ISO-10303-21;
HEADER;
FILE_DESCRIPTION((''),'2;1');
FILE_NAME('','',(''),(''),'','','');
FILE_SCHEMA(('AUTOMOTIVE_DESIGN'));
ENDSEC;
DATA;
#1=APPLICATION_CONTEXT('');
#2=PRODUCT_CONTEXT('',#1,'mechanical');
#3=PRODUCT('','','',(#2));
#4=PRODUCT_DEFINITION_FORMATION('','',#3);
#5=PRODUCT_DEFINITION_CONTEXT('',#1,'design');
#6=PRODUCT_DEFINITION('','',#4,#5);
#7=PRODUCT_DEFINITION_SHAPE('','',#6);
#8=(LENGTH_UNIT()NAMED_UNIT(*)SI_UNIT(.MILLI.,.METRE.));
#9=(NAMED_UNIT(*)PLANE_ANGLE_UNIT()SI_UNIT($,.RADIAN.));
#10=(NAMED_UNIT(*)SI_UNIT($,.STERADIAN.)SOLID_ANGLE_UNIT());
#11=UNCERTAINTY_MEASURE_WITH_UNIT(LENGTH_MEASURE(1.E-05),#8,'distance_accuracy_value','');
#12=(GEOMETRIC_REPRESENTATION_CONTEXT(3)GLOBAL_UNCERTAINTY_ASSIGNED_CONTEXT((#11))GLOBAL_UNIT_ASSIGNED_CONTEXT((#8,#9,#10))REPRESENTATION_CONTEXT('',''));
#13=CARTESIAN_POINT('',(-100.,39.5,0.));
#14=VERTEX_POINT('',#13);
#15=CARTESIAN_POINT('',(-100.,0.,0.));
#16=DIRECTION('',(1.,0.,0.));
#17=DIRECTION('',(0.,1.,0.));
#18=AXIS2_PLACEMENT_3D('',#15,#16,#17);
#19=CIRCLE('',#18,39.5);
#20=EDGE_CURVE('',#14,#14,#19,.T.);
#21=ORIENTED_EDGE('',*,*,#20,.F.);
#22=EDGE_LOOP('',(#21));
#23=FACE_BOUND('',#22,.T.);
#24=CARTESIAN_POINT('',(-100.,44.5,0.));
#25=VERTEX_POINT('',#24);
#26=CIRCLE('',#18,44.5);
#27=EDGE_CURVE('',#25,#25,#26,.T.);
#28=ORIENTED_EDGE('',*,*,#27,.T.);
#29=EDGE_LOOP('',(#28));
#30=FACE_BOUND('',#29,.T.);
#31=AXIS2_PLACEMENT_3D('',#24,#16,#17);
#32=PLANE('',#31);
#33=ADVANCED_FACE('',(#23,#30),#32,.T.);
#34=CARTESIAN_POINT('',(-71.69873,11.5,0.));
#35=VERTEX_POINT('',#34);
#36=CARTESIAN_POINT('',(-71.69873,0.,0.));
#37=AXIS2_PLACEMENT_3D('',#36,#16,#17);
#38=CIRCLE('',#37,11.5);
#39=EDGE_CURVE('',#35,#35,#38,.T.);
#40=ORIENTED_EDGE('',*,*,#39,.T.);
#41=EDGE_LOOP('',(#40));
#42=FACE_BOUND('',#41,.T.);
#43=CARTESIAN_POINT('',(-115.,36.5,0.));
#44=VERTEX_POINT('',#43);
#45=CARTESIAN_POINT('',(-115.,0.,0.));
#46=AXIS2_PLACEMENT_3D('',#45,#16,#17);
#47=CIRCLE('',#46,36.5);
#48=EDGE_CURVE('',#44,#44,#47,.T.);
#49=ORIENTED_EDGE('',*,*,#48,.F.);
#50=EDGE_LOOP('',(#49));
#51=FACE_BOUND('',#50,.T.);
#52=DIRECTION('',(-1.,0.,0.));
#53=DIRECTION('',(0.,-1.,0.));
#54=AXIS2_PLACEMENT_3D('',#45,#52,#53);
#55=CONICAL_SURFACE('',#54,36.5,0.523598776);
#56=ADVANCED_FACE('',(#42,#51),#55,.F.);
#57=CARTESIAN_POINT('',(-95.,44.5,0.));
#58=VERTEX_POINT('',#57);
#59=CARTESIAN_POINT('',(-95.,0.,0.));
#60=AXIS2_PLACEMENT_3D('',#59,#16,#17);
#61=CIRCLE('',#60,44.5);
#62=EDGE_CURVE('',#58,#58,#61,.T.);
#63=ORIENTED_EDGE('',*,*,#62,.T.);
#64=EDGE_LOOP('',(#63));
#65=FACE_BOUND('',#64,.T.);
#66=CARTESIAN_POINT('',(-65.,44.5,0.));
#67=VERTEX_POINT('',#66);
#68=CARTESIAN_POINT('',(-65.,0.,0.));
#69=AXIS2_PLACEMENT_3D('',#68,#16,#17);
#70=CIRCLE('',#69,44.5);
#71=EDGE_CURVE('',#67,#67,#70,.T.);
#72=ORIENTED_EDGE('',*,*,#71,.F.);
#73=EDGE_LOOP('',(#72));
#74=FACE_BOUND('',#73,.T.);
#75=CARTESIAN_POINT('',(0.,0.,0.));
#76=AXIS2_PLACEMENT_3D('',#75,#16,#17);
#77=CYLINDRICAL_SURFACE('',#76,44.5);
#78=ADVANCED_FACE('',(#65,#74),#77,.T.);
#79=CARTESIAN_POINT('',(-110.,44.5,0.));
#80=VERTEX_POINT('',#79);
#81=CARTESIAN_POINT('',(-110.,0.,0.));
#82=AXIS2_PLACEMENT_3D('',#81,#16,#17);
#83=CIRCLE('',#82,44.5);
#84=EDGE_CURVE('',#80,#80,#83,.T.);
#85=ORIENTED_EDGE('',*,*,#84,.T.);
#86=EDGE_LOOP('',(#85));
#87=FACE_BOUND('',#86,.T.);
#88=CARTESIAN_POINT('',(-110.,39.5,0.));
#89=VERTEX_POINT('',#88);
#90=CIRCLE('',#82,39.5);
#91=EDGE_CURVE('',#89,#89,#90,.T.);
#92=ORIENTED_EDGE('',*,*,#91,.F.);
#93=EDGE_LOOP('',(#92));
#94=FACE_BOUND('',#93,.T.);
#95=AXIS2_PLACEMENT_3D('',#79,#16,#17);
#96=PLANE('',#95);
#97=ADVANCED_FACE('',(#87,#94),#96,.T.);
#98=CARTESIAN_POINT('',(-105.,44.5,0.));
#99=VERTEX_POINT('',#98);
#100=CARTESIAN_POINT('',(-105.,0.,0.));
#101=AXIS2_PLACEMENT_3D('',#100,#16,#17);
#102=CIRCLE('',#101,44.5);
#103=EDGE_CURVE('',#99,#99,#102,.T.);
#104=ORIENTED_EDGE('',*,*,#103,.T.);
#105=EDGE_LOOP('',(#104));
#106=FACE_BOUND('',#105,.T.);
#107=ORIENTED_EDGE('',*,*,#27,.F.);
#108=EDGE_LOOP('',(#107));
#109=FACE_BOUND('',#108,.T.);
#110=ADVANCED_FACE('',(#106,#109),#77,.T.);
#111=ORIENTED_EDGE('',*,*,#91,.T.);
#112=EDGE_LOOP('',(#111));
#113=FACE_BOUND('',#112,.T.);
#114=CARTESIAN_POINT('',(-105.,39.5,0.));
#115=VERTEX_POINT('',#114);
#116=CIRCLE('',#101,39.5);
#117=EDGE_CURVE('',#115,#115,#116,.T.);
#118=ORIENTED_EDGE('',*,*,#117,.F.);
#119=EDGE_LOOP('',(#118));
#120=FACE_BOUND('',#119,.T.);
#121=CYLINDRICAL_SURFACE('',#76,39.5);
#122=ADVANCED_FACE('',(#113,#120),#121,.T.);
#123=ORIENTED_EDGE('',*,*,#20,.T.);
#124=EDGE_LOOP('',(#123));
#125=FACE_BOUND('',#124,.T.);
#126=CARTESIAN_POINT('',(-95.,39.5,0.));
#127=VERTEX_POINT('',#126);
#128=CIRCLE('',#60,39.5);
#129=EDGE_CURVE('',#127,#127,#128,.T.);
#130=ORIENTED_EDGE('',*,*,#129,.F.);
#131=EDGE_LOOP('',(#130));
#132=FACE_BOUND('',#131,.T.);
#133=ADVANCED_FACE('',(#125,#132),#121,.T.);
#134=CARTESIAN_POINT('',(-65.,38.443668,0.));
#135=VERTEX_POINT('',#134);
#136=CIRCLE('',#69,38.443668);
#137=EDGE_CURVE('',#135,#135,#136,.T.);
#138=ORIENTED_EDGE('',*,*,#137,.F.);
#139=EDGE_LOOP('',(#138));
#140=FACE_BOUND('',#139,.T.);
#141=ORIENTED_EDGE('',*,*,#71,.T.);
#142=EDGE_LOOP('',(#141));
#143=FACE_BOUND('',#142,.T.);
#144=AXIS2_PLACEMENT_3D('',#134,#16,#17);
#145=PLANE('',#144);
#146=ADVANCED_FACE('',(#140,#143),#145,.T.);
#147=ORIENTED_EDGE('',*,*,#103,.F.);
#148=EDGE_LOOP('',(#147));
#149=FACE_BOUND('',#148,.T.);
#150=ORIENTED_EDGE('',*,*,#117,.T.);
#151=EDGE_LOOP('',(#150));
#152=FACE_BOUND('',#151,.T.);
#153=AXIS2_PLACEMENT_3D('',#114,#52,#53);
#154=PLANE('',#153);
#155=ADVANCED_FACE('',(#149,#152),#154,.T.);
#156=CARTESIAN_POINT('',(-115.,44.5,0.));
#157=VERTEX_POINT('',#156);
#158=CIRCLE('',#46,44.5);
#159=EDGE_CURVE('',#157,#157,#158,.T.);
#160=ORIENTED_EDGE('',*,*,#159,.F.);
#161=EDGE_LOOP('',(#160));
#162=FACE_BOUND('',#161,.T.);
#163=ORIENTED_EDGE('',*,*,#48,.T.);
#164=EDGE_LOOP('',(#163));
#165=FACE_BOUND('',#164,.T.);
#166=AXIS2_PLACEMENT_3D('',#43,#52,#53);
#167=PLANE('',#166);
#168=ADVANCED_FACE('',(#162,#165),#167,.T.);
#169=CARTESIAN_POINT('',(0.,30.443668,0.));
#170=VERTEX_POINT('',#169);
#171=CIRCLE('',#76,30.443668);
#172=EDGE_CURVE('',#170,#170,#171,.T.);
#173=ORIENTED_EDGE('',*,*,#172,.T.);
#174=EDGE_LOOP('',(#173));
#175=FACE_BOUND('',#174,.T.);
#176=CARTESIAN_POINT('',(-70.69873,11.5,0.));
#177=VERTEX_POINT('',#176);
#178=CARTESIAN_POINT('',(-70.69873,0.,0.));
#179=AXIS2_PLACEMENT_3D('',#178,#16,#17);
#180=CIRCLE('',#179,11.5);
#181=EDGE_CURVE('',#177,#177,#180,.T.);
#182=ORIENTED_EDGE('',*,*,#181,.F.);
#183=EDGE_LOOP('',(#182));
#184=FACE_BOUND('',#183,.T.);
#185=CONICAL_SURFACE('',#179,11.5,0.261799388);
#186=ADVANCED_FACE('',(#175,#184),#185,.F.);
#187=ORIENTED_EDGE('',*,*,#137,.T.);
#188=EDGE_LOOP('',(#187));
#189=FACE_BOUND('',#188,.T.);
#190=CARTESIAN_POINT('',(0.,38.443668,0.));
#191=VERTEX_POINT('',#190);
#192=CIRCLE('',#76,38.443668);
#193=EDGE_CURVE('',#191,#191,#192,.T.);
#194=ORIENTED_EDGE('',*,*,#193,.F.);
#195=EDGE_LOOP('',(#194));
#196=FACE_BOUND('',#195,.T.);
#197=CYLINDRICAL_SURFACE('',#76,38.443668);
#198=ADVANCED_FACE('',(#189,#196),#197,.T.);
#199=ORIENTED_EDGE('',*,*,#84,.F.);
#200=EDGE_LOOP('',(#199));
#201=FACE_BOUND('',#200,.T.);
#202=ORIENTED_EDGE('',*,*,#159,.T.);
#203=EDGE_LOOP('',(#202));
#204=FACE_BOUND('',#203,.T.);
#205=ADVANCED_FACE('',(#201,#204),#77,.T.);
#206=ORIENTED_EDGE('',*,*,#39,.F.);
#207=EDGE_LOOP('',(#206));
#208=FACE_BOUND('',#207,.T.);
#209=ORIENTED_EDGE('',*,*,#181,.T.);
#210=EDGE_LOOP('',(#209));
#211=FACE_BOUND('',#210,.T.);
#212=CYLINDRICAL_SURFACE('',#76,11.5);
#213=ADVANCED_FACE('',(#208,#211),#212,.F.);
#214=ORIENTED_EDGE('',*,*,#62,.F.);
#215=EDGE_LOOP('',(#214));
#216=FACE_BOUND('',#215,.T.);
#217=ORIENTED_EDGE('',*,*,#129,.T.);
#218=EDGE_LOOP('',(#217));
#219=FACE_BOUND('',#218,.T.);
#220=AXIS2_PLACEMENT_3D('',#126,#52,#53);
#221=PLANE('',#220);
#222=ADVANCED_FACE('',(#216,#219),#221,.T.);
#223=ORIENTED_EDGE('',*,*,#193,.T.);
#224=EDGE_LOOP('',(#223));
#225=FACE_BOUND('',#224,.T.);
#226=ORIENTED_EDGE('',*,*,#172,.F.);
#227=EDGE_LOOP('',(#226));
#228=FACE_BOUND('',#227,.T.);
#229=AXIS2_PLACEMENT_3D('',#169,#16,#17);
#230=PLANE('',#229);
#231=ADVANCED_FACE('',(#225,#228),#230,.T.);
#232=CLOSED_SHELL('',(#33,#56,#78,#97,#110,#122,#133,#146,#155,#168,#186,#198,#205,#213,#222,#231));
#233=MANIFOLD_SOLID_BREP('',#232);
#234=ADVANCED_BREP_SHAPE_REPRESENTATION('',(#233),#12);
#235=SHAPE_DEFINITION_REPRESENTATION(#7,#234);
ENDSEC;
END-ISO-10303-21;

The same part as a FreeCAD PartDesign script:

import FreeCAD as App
import Part
import Sketcher
Q = App.Units.Quantity

doc = App.newDocument("Part")
body = doc.addObject("PartDesign::Body", "Body")

# Sketch on XY plane
sketch1 = body.newObject("Sketcher::SketchObject", "Sketch")
sketch1.AttachmentSupport = (doc.getObject("XY_Plane"), [""])
sketch1.MapMode = "FlatFace"
sketch1.addGeometry([
    Part.LineSegment(App.Vector(-115, 36.5, 0), App.Vector(-71.69873, 11.5, 0)),  # 0
    Part.LineSegment(App.Vector(-71.69873, 11.5, 0), App.Vector(-70.69873, 11.5, 0)),  # 1
    Part.LineSegment(App.Vector(-70.69873, 11.5, 0), App.Vector(0, 30.443668, 0)),  # 2
    Part.LineSegment(App.Vector(0, 30.443668, 0), App.Vector(0, 38.443668, 0)),  # 3
    Part.LineSegment(App.Vector(0, 38.443668, 0), App.Vector(-65, 38.443668, 0)),  # 4
    Part.LineSegment(App.Vector(-65, 38.443668, 0), App.Vector(-65, 44.5, 0)),  # 5
    Part.LineSegment(App.Vector(-65, 44.5, 0), App.Vector(-95, 44.5, 0)),  # 6
    Part.LineSegment(App.Vector(-95, 44.5, 0), App.Vector(-95, 39.5, 0)),  # 7
    Part.LineSegment(App.Vector(-95, 39.5, 0), App.Vector(-100, 39.5, 0)),  # 8
    Part.LineSegment(App.Vector(-100, 39.5, 0), App.Vector(-100, 44.5, 0)),  # 9
    Part.LineSegment(App.Vector(-100, 44.5, 0), App.Vector(-105, 44.5, 0)),  # 10
    Part.LineSegment(App.Vector(-105, 44.5, 0), App.Vector(-105, 39.5, 0)),  # 11
    Part.LineSegment(App.Vector(-105, 39.5, 0), App.Vector(-110, 39.5, 0)),  # 12
    Part.LineSegment(App.Vector(-110, 39.5, 0), App.Vector(-110, 44.5, 0)),  # 13
    Part.LineSegment(App.Vector(-110, 44.5, 0), App.Vector(-115, 44.5, 0)),  # 14
    Part.LineSegment(App.Vector(-115, 44.5, 0), App.Vector(-115, 36.5, 0)),  # 15
], False)
sketch1.addConstraint([
    Sketcher.Constraint("Coincident", 0, 2, 1, 1),
    Sketcher.Constraint("Coincident", 1, 2, 2, 1),
    Sketcher.Constraint("Coincident", 2, 2, 3, 1),
    Sketcher.Constraint("Coincident", 3, 2, 4, 1),
    Sketcher.Constraint("Coincident", 4, 2, 5, 1),
    Sketcher.Constraint("Coincident", 5, 2, 6, 1),
    Sketcher.Constraint("Coincident", 6, 2, 7, 1),
    Sketcher.Constraint("Coincident", 7, 2, 8, 1),
    Sketcher.Constraint("Coincident", 8, 2, 9, 1),
    Sketcher.Constraint("Coincident", 9, 2, 10, 1),
    Sketcher.Constraint("Coincident", 10, 2, 11, 1),
    Sketcher.Constraint("Coincident", 11, 2, 12, 1),
    Sketcher.Constraint("Coincident", 12, 2, 13, 1),
    Sketcher.Constraint("Coincident", 13, 2, 14, 1),
    Sketcher.Constraint("Coincident", 14, 2, 15, 1),
    Sketcher.Constraint("Coincident", 15, 2, 0, 1),
    Sketcher.Constraint("Horizontal", 1),
    Sketcher.Constraint("Vertical", 3),
    Sketcher.Constraint("Horizontal", 4),
    Sketcher.Constraint("Vertical", 5),
    Sketcher.Constraint("Horizontal", 6),
    Sketcher.Constraint("Vertical", 7),
    Sketcher.Constraint("Horizontal", 8),
    Sketcher.Constraint("Vertical", 9),
    Sketcher.Constraint("Horizontal", 10),
    Sketcher.Constraint("Vertical", 11),
    Sketcher.Constraint("Horizontal", 12),
    Sketcher.Constraint("Vertical", 13),
    Sketcher.Constraint("Horizontal", 14),
    Sketcher.Constraint("Vertical", 15),
    Sketcher.Constraint("PointOnObject", 2, 2, -2),
    Sketcher.Constraint("Horizontal", 6, 2, 9, 2),
    Sketcher.Constraint("Horizontal", 8, 2, 11, 2),
    Sketcher.Constraint("Horizontal", 10, 2, 13, 2),
    Sketcher.Constraint("Equal", 8, 10),
    Sketcher.Constraint("Equal", 10, 12),
    Sketcher.Constraint("Equal", 12, 14),
    Sketcher.Constraint("Equal", 14, 7),
    Sketcher.Constraint("Equal", 3, 15),
    Sketcher.Constraint("DistanceX", 1, 1, 1, 2, 1.0),
    Sketcher.Constraint("DistanceX", 4, 2, 4, 1, 65.0),
    Sketcher.Constraint("DistanceX", 6, 2, 6, 1, 30.0),
    Sketcher.Constraint("DistanceX", 8, 2, 8, 1, 5.0),
    Sketcher.Constraint("DistanceY", 3, 1, 3, 2, 8.0),
    Sketcher.Constraint("Angle", 0, Q("-30 deg")),
    Sketcher.Constraint("Angle", 2, Q("15 deg")),
    Sketcher.Constraint("Distance", 0, 50.0),
    Sketcher.Constraint("DistanceY", -1, 1, 0, 2, 11.5),
])
revolution = body.newObject("PartDesign::Revolution", "Revolution")
revolution.Profile = sketch1
revolution.ReferenceAxis = (sketch1, ["H_Axis"])
revolution.Angle = 360

doc.recompute()
